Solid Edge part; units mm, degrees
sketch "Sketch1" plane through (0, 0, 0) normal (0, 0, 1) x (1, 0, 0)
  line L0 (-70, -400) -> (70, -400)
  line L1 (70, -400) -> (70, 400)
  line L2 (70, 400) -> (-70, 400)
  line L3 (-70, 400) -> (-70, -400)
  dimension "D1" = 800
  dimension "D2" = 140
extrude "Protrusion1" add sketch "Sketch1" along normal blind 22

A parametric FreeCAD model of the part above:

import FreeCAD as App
import Part
import Sketcher

V = App.Vector
Q = App.Units.Quantity


def add_polygon(sketch, points):
    """Adds a closed chain of lines whose ends are joined by coincident constraints."""
    first, n = sketch.GeometryCount, len(points)
    for a, b in zip(points, points[1:] + points[:1]):
        sketch.addGeometry(Part.LineSegment(App.Vector(*a, 0), App.Vector(*b, 0)), False)
    for i in range(n):
        sketch.addConstraint(Sketcher.Constraint("Coincident", first + i, 2, first + (i + 1) % n, 1))

doc = App.newDocument("Part")
body = doc.addObject("PartDesign::Body", "Body")

sketch1 = body.newObject("Sketcher::SketchObject", "Sketch")
sketch1.AttachmentSupport = (doc.getObject("XY_Plane"), [""])
sketch1.MapMode = "FlatFace"
add_polygon(sketch1, [(-70, 400), (-70, -400), (70, -400), (70, 400)])
sketch1.addConstraint(Sketcher.Constraint("Vertical", 0))
sketch1.addConstraint(Sketcher.Constraint("Horizontal", 1))
sketch1.addConstraint(Sketcher.Constraint("Vertical", 2))
sketch1.addConstraint(Sketcher.Constraint("Horizontal", 3))
sketch1.addConstraint(Sketcher.Constraint("Symmetric", 0, 2, 2, 2, -1, 1))
sketch1.addConstraint(Sketcher.Constraint("DistanceX", 0, 2, -1, 1, Q("70 mm")))
sketch1.addConstraint(Sketcher.Constraint("DistanceY", 0, 2, 0, 1, Q("800 mm")))
pad1 = body.newObject("PartDesign::Pad", "Pad")
pad1.Profile = sketch1
pad1.Length = 22

doc.recompute()
